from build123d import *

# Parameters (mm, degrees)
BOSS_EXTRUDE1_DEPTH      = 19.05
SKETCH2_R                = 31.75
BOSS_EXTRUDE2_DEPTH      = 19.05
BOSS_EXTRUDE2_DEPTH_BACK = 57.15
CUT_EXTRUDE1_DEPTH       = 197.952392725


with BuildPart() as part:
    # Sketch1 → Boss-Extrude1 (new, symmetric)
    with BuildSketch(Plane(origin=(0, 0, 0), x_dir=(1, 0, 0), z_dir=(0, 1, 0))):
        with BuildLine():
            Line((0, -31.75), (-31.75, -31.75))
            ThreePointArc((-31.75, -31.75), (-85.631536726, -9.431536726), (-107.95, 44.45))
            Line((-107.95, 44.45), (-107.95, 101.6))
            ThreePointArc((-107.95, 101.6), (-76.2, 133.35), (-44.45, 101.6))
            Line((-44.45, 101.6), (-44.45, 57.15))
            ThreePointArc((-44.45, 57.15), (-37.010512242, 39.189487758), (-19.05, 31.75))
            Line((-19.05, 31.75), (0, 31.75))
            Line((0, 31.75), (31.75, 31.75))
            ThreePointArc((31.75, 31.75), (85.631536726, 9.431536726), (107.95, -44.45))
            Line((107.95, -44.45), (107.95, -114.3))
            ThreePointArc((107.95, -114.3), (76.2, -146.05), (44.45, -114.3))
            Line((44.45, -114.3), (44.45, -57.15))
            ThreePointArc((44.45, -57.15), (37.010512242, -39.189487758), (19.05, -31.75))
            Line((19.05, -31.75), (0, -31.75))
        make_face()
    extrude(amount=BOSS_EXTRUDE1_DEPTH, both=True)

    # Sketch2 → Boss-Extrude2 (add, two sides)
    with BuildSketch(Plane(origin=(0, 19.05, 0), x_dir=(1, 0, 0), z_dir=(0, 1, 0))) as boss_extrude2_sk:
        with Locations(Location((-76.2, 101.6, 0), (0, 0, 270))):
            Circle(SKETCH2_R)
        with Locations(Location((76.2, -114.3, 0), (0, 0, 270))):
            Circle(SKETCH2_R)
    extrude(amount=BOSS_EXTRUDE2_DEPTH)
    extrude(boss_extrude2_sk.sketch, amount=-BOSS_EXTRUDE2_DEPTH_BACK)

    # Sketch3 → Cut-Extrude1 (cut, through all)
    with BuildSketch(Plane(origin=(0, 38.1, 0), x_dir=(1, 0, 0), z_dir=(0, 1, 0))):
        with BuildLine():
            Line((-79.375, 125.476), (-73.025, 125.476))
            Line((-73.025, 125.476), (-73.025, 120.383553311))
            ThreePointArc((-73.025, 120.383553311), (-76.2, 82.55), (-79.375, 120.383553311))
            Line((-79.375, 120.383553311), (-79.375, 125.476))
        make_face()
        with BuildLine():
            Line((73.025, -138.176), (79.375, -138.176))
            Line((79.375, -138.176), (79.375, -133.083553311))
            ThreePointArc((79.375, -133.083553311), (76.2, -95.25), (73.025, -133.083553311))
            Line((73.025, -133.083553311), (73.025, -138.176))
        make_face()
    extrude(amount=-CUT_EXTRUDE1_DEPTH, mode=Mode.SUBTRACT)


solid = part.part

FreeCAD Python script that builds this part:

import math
import FreeCAD as App
import Part
import Sketcher
Q = App.Units.Quantity

doc = App.newDocument("Part")
body = doc.addObject("PartDesign::Body", "Body")

# Sketch on XZ plane
sketch1 = body.newObject("Sketcher::SketchObject", "Sketch")
sketch1.AttachmentSupport = (doc.getObject("XZ_Plane"), [""])
sketch1.MapMode = "FlatFace"
sketch1.addGeometry([
    Part.ArcOfCircle(Part.Circle(App.Vector(-32, -44, 0), App.Vector(0, 0, 1), 76), math.radians(90), math.radians(180)),  # 0
    Part.LineSegment(App.Vector(-32, 32, 0), App.Vector(19, 32, 0)),  # 1
    Part.ArcOfCircle(Part.Circle(App.Vector(19, 57, 0), App.Vector(0, 0, 1), 25), math.radians(-90), math.radians(0)),  # 2
    Part.LineSegment(App.Vector(44, 57, 0), App.Vector(44, 114, 0)),  # 3
    Part.ArcOfCircle(Part.Circle(App.Vector(76, 114, 0), App.Vector(0, 0, 1), 32), math.radians(0), math.radians(180)),  # 4
    Part.LineSegment(App.Vector(108, 114, 0), App.Vector(108, 44, 0)),  # 5
    Part.ArcOfCircle(Part.Circle(App.Vector(32, 44, 0), App.Vector(0, 0, 1), 76), math.radians(-90), math.radians(0)),  # 6
    Part.LineSegment(App.Vector(32, -32, 0), App.Vector(-19, -32, 0)),  # 7
    Part.ArcOfCircle(Part.Circle(App.Vector(-19, -57, 0), App.Vector(0, 0, 1), 25), math.radians(90), math.radians(180)),  # 8
    Part.LineSegment(App.Vector(-44, -57, 0), App.Vector(-44, -102, 0)),  # 9
    Part.ArcOfCircle(Part.Circle(App.Vector(-76, -102, 0), App.Vector(0, 0, 1), 32), math.radians(180), math.radians(360)),  # 10
    Part.LineSegment(App.Vector(-108, -102, 0), App.Vector(-108, -44, 0)),  # 11
], False)
sketch1.addConstraint([
    Sketcher.Constraint("Tangent", 0, 1, 1, 1),
    Sketcher.Constraint("Tangent", 1, 2, 2, 1),
    Sketcher.Constraint("Tangent", 2, 2, 3, 1),
    Sketcher.Constraint("Tangent", 3, 2, 4, 2),
    Sketcher.Constraint("Tangent", 4, 1, 5, 1),
    Sketcher.Constraint("Tangent", 5, 2, 6, 2),
    Sketcher.Constraint("Tangent", 6, 1, 7, 1),
    Sketcher.Constraint("Tangent", 7, 2, 8, 1),
    Sketcher.Constraint("Tangent", 8, 2, 9, 1),
    Sketcher.Constraint("Tangent", 9, 2, 10, 2),
    Sketcher.Constraint("Tangent", 10, 1, 11, 1),
    Sketcher.Constraint("Tangent", 11, 2, 0, 2),
    Sketcher.Constraint("Horizontal", 1),
    Sketcher.Constraint("Vertical", 3),
    Sketcher.Constraint("Vertical", 5),
    Sketcher.Constraint("Horizontal", 7),
    Sketcher.Constraint("Vertical", 9),
    Sketcher.Constraint("Vertical", 11),
    Sketcher.Constraint("Equal", 0, 6),
    Sketcher.Constraint("Equal", 2, 8),
    Sketcher.Constraint("Equal", 4, 10),
    Sketcher.Constraint("Symmetric", 0, 3, 6, 3, -1, 1),
    Sketcher.Constraint("Equal", 3, 11),
    Sketcher.Constraint("Radius", 0, Q("3 in")),
    Sketcher.Constraint("Radius", 2, Q("1 in")),
    Sketcher.Constraint("DistanceX", 1, 1, 1, 2, Q("2 in")),
    Sketcher.Constraint("Radius", 4, Q("1.25 in")),
    Sketcher.Constraint("DistanceY", 10, 3, -1, 1, Q("4 in")),
    Sketcher.Constraint("DistanceY", 3, 1, 3, 2, Q("2.25 in")),
])
pad1 = body.newObject("PartDesign::Pad", "Pad")
pad1.Profile = sketch1
pad1.Length = Q("1.5 in")
pad1.Midplane = True

# Sketch on XZ plane
sketch2 = body.newObject("Sketcher::SketchObject", "Sketch001")
sketch2.AttachmentSupport = (doc.getObject("XZ_Plane"), [""])
sketch2.MapMode = "FlatFace"
sketch2.AttachmentOffset = App.Placement(App.Vector(0, 0, -0.75 * 25.4), App.Rotation())
sketch2.addGeometry([
    Part.Circle(App.Vector(-76, -102, 0), App.Vector(0, 0, 1), 32),
    Part.Circle(App.Vector(76, 114, 0), App.Vector(0, 0, 1), 32),
], False)
sketch2.addConstraint([
    Sketcher.Constraint("Equal", 0, 1),
    Sketcher.Constraint("Diameter", 0, Q("2.5 in")),
    Sketcher.Constraint("DistanceX", 0, 3, -1, 1, Q("3 in")),
    Sketcher.Constraint("DistanceY", 0, 3, -1, 1, Q("4 in")),
    Sketcher.Constraint("DistanceX", -1, 1, 1, 3, Q("3 in")),
    Sketcher.Constraint("DistanceY", -1, 1, 1, 3, Q("4.5 in")),
])
pad2 = body.newObject("PartDesign::Pad", "Pad001")
pad2.Profile = sketch2
pad2.Type = "TwoLengths"
pad2.Length = Q("0.75 in")
pad2.Length2 = Q("2.25 in")
pad2.Reversed = True

# Sketch on XZ plane
sketch3 = body.newObject("Sketcher::SketchObject", "Sketch002")
sketch3.AttachmentSupport = (doc.getObject("XZ_Plane"), [""])
sketch3.MapMode = "FlatFace"
sketch3.AttachmentOffset = App.Placement(App.Vector(0, 0, -1.5 * 25.4), App.Rotation())
sketch3.addGeometry([
    Part.LineSegment(App.Vector(-73, -125, 0), App.Vector(-79, -125, 0)),  # 0
    Part.LineSegment(App.Vector(-79, -125, 0), App.Vector(-79, -120, 0)),  # 1
    Part.ArcOfCircle(Part.Circle(App.Vector(-76, -102, 0), App.Vector(0, 0, 1), 19), math.radians(-80), math.radians(260)),  # 2
    Part.LineSegment(App.Vector(-73, -120, 0), App.Vector(-73, -125, 0)),  # 3
    Part.LineSegment(App.Vector(73, 138, 0), App.Vector(79, 138, 0)),  # 4
    Part.LineSegment(App.Vector(79, 138, 0), App.Vector(79, 133, 0)),  # 5
    Part.ArcOfCircle(Part.Circle(App.Vector(76, 114, 0), App.Vector(0, 0, 1), 19), math.radians(100), math.radians(440)),  # 6
    Part.LineSegment(App.Vector(73, 133, 0), App.Vector(73, 138, 0)),  # 7
], False)
sketch3.addConstraint([
    Sketcher.Constraint("Coincident", 0, 2, 1, 1),
    Sketcher.Constraint("Coincident", 1, 2, 2, 2),
    Sketcher.Constraint("Coincident", 2, 1, 3, 1),
    Sketcher.Constraint("Coincident", 3, 2, 0, 1),
    Sketcher.Constraint("Coincident", 4, 2, 5, 1),
    Sketcher.Constraint("Coincident", 5, 2, 6, 2),
    Sketcher.Constraint("Coincident", 6, 1, 7, 1),
    Sketcher.Constraint("Coincident", 7, 2, 4, 1),
    Sketcher.Constraint("Horizontal", 0),
    Sketcher.Constraint("Vertical", 1),
    Sketcher.Constraint("Vertical", 3),
    Sketcher.Constraint("Horizontal", 4),
    Sketcher.Constraint("Vertical", 5),
    Sketcher.Constraint("Vertical", 7),
    Sketcher.Constraint("Equal", 2, 6),
    Sketcher.Constraint("Horizontal", 1, 2, 2, 1),
    Sketcher.Constraint("Horizontal", 5, 2, 6, 1),
    Sketcher.Constraint("Equal", 0, 4),
    Sketcher.Constraint("Equal", 3, 5),
    Sketcher.Constraint("Radius", 2, Q("0.75 in")),
    Sketcher.Constraint("DistanceX", 2, 3, -1, 1, Q("3 in")),
    Sketcher.Constraint("DistanceY", 2, 3, -1, 1, Q("4 in")),
    Sketcher.Constraint("DistanceX", -1, 1, 6, 3, Q("3 in")),
    Sketcher.Constraint("DistanceX", 0, 2, 0, 1, Q("0.25 in")),
    Sketcher.Constraint("DistanceY", -1, 1, 6, 3, Q("4.5 in")),
    Sketcher.Constraint("DistanceY", 0, 2, -1, 1, Q("4.94 in")),
])
pocket1 = body.newObject("PartDesign::Pocket", "Pocket")
pocket1.Profile = sketch3
pocket1.Type = "ThroughAll"
pocket1.Reversed = True

doc.recompute()
